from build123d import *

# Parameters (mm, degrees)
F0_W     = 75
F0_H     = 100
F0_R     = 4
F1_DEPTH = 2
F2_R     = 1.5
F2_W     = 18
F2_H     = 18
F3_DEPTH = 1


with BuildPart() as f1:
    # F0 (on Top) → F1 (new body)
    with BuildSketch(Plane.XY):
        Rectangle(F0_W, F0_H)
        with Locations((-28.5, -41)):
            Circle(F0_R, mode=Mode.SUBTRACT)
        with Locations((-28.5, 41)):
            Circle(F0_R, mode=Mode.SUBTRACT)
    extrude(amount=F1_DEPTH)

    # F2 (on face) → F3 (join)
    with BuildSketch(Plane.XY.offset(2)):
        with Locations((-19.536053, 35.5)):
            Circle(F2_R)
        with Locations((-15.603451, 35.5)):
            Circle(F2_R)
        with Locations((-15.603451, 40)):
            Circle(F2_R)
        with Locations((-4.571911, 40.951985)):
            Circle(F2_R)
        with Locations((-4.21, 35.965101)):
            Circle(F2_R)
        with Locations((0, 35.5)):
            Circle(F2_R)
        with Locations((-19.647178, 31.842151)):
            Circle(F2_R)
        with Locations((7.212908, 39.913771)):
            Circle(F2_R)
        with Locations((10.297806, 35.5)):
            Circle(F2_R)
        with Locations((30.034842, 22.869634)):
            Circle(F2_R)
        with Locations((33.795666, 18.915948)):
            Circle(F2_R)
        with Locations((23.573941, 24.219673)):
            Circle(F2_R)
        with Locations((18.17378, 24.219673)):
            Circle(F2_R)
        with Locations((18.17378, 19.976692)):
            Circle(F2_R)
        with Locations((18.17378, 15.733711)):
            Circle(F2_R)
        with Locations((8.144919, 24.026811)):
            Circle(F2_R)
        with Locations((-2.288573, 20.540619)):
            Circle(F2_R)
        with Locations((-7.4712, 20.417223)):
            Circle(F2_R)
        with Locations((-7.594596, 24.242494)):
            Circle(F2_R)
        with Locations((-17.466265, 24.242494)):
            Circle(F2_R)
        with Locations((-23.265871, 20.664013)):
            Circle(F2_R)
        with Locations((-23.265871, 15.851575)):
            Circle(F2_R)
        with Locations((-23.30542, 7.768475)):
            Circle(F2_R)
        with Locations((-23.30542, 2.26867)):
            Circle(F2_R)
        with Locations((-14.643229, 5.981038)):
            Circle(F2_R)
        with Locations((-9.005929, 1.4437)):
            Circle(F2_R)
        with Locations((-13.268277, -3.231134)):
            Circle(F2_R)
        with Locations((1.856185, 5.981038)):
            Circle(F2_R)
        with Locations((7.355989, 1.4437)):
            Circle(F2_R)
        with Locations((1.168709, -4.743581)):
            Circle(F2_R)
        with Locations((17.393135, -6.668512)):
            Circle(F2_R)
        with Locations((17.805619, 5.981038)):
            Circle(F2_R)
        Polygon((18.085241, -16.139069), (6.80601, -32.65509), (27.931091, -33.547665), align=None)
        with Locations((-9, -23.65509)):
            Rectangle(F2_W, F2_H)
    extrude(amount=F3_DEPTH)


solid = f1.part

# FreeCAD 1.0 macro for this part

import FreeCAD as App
import Part
import Sketcher

V = App.Vector

doc = App.newDocument("Part")
params = doc.addObject("Spreadsheet::Sheet", "Params")
for row, (alias, value) in enumerate([
    ("sketch1_diameter", "8 mm"),
    ("sketch1_width", "75 mm"),
    ("sketch1_height", "100 mm"),
    ("pad1_length", "2 mm"),
    ("sketch2_diameter", "3 mm"),
    ("sketch2_width", "18 mm"),
    ("sketch2_length", "20 mm"),
    ("pad2_length", "1 mm"),
], start=1):
    params.set(f"A{row}", alias)
    params.set(f"B{row}", "=" + value)
    params.setAlias(f"B{row}", alias)

body = doc.addObject("PartDesign::Body", "Body")

# Sketch on XY plane
sketch1 = body.newObject("Sketcher::SketchObject", "Sketch")
sketch1.AttachmentSupport = (doc.getObject("XY_Plane"), [""])
sketch1.MapMode = "FlatFace"
sketch1.addGeometry(Part.LineSegment(V(-37.5, 50, 0), V(-37.5, -50, 0)), False)
sketch1.addGeometry(Part.LineSegment(V(-37.5, -50, 0), V(37.5, -50, 0)), False)
sketch1.addGeometry(Part.LineSegment(V(37.5, -50, 0), V(37.5, 50, 0)), False)
sketch1.addGeometry(Part.LineSegment(V(37.5, 50, 0), V(-37.5, 50, 0)), False)
sketch1.addGeometry(Part.Circle(V(-28.5, -41, 0), V(0, 0, 1), 4), False)
sketch1.addGeometry(Part.Circle(V(-28.5, 41, 0), V(0, 0, 1), 4), False)
sketch1.addConstraint(Sketcher.Constraint("Coincident", 0, 2, 1, 1))
sketch1.addConstraint(Sketcher.Constraint("Coincident", 1, 2, 2, 1))
sketch1.addConstraint(Sketcher.Constraint("Coincident", 2, 2, 3, 1))
sketch1.addConstraint(Sketcher.Constraint("Coincident", 3, 2, 0, 1))
sketch1.addConstraint(Sketcher.Constraint("Vertical", 0))
sketch1.addConstraint(Sketcher.Constraint("Horizontal", 1))
sketch1.addConstraint(Sketcher.Constraint("Vertical", 2))
sketch1.addConstraint(Sketcher.Constraint("Horizontal", 3))
sketch1.addConstraint(Sketcher.Constraint("Equal", 4, 5))
sketch1.addConstraint(Sketcher.Constraint("Symmetric", 0, 2, 2, 2, -1, 1))
sketch1.addConstraint(Sketcher.Constraint("Symmetric", 4, 3, 5, 3, -1))
sketch1.addConstraint(Sketcher.Constraint("Diameter", 4, 8.0))
sketch1.addConstraint(Sketcher.Constraint("DistanceX", 1, 1, 1, 2, 75.0))
sketch1.addConstraint(Sketcher.Constraint("DistanceY", 0, 2, 0, 1, 100.0))
sketch1.addConstraint(Sketcher.Constraint("DistanceY", 4, 3, -1, 1, 41.0))
sketch1.addConstraint(Sketcher.Constraint("DistanceX", 0, 2, 4, 3, 9.0))
sketch1.setExpression("Constraints[11]", "Params.sketch1_diameter")
sketch1.setExpression("Constraints[12]", "Params.sketch1_width")
sketch1.setExpression("Constraints[13]", "Params.sketch1_height")
pad1 = body.newObject("PartDesign::Pad", "Pad")
pad1.Profile = sketch1
pad1.setExpression("Length", "Params.pad1_length")

# Sketch on XY plane
sketch2 = body.newObject("Sketcher::SketchObject", "Sketch001")
sketch2.AttachmentSupport = (doc.getObject("XY_Plane"), [""])
sketch2.MapMode = "FlatFace"
sketch2.AttachmentOffset = App.Placement(V(0, 0, 2), App.Rotation())
sketch2.addGeometry(Part.Circle(V(-19.536053, 35.5, 0), V(0, 0, 1), 1.5), False)
sketch2.addGeometry(Part.Circle(V(-15.603451, 35.5, 0), V(0, 0, 1), 1.5), False)
sketch2.addGeometry(Part.Circle(V(-15.603451, 40, 0), V(0, 0, 1), 1.5), False)
sketch2.addGeometry(Part.Circle(V(-4.571911, 40.951985, 0), V(0, 0, 1), 1.5), False)
sketch2.addGeometry(Part.Circle(V(-4.21, 35.965101, 0), V(0, 0, 1), 1.5), False)
sketch2.addGeometry(Part.Circle(V(0, 35.5, 0), V(0, 0, 1), 1.5), False)
sketch2.addGeometry(Part.Circle(V(-19.647178, 31.842151, 0), V(0, 0, 1), 1.5), False)
sketch2.addGeometry(Part.Circle(V(7.212908, 39.913771, 0), V(0, 0, 1), 1.5), False)
sketch2.addGeometry(Part.Circle(V(10.297806, 35.5, 0), V(0, 0, 1), 1.5), False)
sketch2.addGeometry(Part.Circle(V(30.034842, 22.869634, 0), V(0, 0, 1), 1.5), False)
sketch2.addGeometry(Part.Circle(V(33.795666, 18.915948, 0), V(0, 0, 1), 1.5), False)
sketch2.addGeometry(Part.Circle(V(23.573941, 24.219673, 0), V(0, 0, 1), 1.5), False)
sketch2.addGeometry(Part.Circle(V(18.17378, 24.219673, 0), V(0, 0, 1), 1.5), False)
sketch2.addGeometry(Part.Circle(V(18.17378, 19.976692, 0), V(0, 0, 1), 1.5), False)
sketch2.addGeometry(Part.Circle(V(18.17378, 15.733711, 0), V(0, 0, 1), 1.5), False)
sketch2.addGeometry(Part.Circle(V(8.144919, 24.026811, 0), V(0, 0, 1), 1.5), False)
sketch2.addGeometry(Part.Circle(V(-2.288573, 20.540619, 0), V(0, 0, 1), 1.5), False)
sketch2.addGeometry(Part.Circle(V(-7.4712, 20.417223, 0), V(0, 0, 1), 1.5), False)
sketch2.addGeometry(Part.Circle(V(-7.594596, 24.242494, 0), V(0, 0, 1), 1.5), False)
sketch2.addGeometry(Part.Circle(V(-17.466265, 24.242494, 0), V(0, 0, 1), 1.5), False)
sketch2.addGeometry(Part.Circle(V(-23.265871, 20.664013, 0), V(0, 0, 1), 1.5), False)
sketch2.addGeometry(Part.Circle(V(-23.265871, 15.851575, 0), V(0, 0, 1), 1.5), False)
sketch2.addGeometry(Part.Circle(V(-23.30542, 7.768475, 0), V(0, 0, 1), 1.5), False)
sketch2.addGeometry(Part.Circle(V(-23.30542, 2.26867, 0), V(0, 0, 1), 1.5), False)
sketch2.addGeometry(Part.Circle(V(-14.643229, 5.981038, 0), V(0, 0, 1), 1.5), False)
sketch2.addGeometry(Part.Circle(V(-9.005929, 1.4437, 0), V(0, 0, 1), 1.5), False)
sketch2.addGeometry(Part.Circle(V(-13.268277, -3.231134, 0), V(0, 0, 1), 1.5), False)
sketch2.addGeometry(Part.Circle(V(1.856185, 5.981038, 0), V(0, 0, 1), 1.5), False)
sketch2.addGeometry(Part.Circle(V(7.355989, 1.4437, 0), V(0, 0, 1), 1.5), False)
sketch2.addGeometry(Part.Circle(V(1.168709, -4.743581, 0), V(0, 0, 1), 1.5), False)
sketch2.addGeometry(Part.Circle(V(17.393135, -6.668512, 0), V(0, 0, 1), 1.5), False)
sketch2.addGeometry(Part.Circle(V(17.805619, 5.981038, 0), V(0, 0, 1), 1.5), False)
sketch2.addGeometry(Part.LineSegment(V(18.085241, -16.139069, 0), V(6.80601, -32.65509, 0)), False)
sketch2.addGeometry(Part.LineSegment(V(6.80601, -32.65509, 0), V(27.931091, -33.547665, 0)), False)
sketch2.addGeometry(Part.LineSegment(V(27.931091, -33.547665, 0), V(18.085241, -16.139069, 0)), False)
sketch2.addGeometry(Part.LineSegment(V(-18, -14.65509, 0), V(-18, -32.65509, 0)), False)
sketch2.addGeometry(Part.LineSegment(V(-18, -32.65509, 0), V(0, -32.65509, 0)), False)
sketch2.addGeometry(Part.LineSegment(V(0, -32.65509, 0), V(0, -14.65509, 0)), False)
sketch2.addGeometry(Part.LineSegment(V(0, -14.65509, 0), V(-18, -14.65509, 0)), False)
sketch2.addConstraint(Sketcher.Constraint("Coincident", 32, 2, 33, 1))
sketch2.addConstraint(Sketcher.Constraint("Coincident", 33, 2, 34, 1))
sketch2.addConstraint(Sketcher.Constraint("Coincident", 34, 2, 32, 1))
sketch2.addConstraint(Sketcher.Constraint("Coincident", 35, 2, 36, 1))
sketch2.addConstraint(Sketcher.Constraint("Coincident", 36, 2, 37, 1))
sketch2.addConstraint(Sketcher.Constraint("Coincident", 37, 2, 38, 1))
sketch2.addConstraint(Sketcher.Constraint("Coincident", 38, 2, 35, 1))
sketch2.addConstraint(Sketcher.Constraint("Vertical", 35))
sketch2.addConstraint(Sketcher.Constraint("Horizontal", 36))
sketch2.addConstraint(Sketcher.Constraint("Vertical", 37))
sketch2.addConstraint(Sketcher.Constraint("Horizontal", 38))
sketch2.addConstraint(Sketcher.Constraint("Equal", 0, 1))
sketch2.addConstraint(Sketcher.Constraint("Equal", 1, 2))
sketch2.addConstraint(Sketcher.Constraint("Equal", 2, 3))
sketch2.addConstraint(Sketcher.Constraint("Equal", 3, 4))
sketch2.addConstraint(Sketcher.Constraint("Equal", 4, 5))
sketch2.addConstraint(Sketcher.Constraint("Equal", 5, 6))
sketch2.addConstraint(Sketcher.Constraint("Equal", 6, 7))
sketch2.addConstraint(Sketcher.Constraint("Equal", 7, 8))
sketch2.addConstraint(Sketcher.Constraint("Equal", 8, 9))
sketch2.addConstraint(Sketcher.Constraint("Equal", 9, 10))
sketch2.addConstraint(Sketcher.Constraint("Equal", 10, 11))
sketch2.addConstraint(Sketcher.Constraint("Equal", 11, 12))
sketch2.addConstraint(Sketcher.Constraint("Equal", 12, 13))
sketch2.addConstraint(Sketcher.Constraint("Equal", 13, 14))
sketch2.addConstraint(Sketcher.Constraint("Equal", 14, 15))
sketch2.addConstraint(Sketcher.Constraint("Equal", 15, 16))
sketch2.addConstraint(Sketcher.Constraint("Equal", 16, 17))
sketch2.addConstraint(Sketcher.Constraint("Equal", 17, 18))
sketch2.addConstraint(Sketcher.Constraint("Equal", 18, 19))
sketch2.addConstraint(Sketcher.Constraint("Equal", 19, 20))
sketch2.addConstraint(Sketcher.Constraint("Equal", 20, 21))
sketch2.addConstraint(Sketcher.Constraint("Equal", 21, 22))
sketch2.addConstraint(Sketcher.Constraint("Equal", 22, 23))
sketch2.addConstraint(Sketcher.Constraint("Equal", 23, 24))
sketch2.addConstraint(Sketcher.Constraint("Equal", 24, 25))
sketch2.addConstraint(Sketcher.Constraint("Equal", 25, 26))
sketch2.addConstraint(Sketcher.Constraint("Equal", 26, 27))
sketch2.addConstraint(Sketcher.Constraint("Equal", 27, 28))
sketch2.addConstraint(Sketcher.Constraint("Equal", 28, 29))
sketch2.addConstraint(Sketcher.Constraint("Equal", 29, 30))
sketch2.addConstraint(Sketcher.Constraint("Equal", 30, 31))
sketch2.addConstraint(Sketcher.Constraint("PointOnObject", 5, 3, -2))
sketch2.addConstraint(Sketcher.Constraint("PointOnObject", 36, 2, -2))
sketch2.addConstraint(Sketcher.Constraint("Horizontal", 0, 3, 1, 3))
sketch2.addConstraint(Sketcher.Constraint("Horizontal", 1, 3, 5, 3))
sketch2.addConstraint(Sketcher.Constraint("Horizontal", 5, 3, 8, 3))
sketch2.addConstraint(Sketcher.Constraint("Horizontal", 11, 3, 12, 3))
sketch2.addConstraint(Sketcher.Constraint("Horizontal", 18, 3, 19, 3))
sketch2.addConstraint(Sketcher.Constraint("Horizontal", 24, 3, 27, 3))
sketch2.addConstraint(Sketcher.Constraint("Horizontal", 25, 3, 28, 3))
sketch2.addConstraint(Sketcher.Constraint("Horizontal", 27, 3, 31, 3))
sketch2.addConstraint(Sketcher.Constraint("Horizontal", 32, 2, 35, 2))
sketch2.addConstraint(Sketcher.Constraint("Vertical", 1, 3, 2, 3))
sketch2.addConstraint(Sketcher.Constraint("Vertical", 12, 3, 13, 3))
sketch2.addConstraint(Sketcher.Constraint("Vertical", 13, 3, 14, 3))
sketch2.addConstraint(Sketcher.Constraint("Vertical", 20, 3, 21, 3))
sketch2.addConstraint(Sketcher.Constraint("Vertical", 22, 3, 23, 3))
sketch2.addConstraint(Sketcher.Constraint("Equal", 38, 35))
sketch2.addConstraint(Sketcher.Constraint("Equal", 32, 34))
sketch2.addConstraint(Sketcher.Constraint("Diameter", 0, 3.0))
sketch2.addConstraint(Sketcher.Constraint("DistanceX", 36, 1, 36, 2, 18.0))
sketch2.addConstraint(Sketcher.Constraint("Distance", 32, 20.0))
sketch2.addConstraint(Sketcher.Constraint("DistanceY", -1, 1, 2, 3, 40.0))
sketch2.addConstraint(Sketcher.Constraint("DistanceY", -1, 1, 0, 3, 35.5))
sketch2.addConstraint(Sketcher.Constraint("DistanceX", 4, 3, -1, 1, 4.21))
sketch2.addConstraint(Sketcher.Constraint("DistanceY", -1, 1, 4, 3, 35.965101))
sketch2.addConstraint(Sketcher.Constraint("DistanceX", 17, 3, -1, 1, 7.4712))
sketch2.addConstraint(Sketcher.Constraint("DistanceY", -1, 1, 25, 3, 1.4437))
sketch2.addConstraint(Sketcher.Constraint("DistanceX", 0, 3, 1, 3, 3.932602))
sketch2.addConstraint(Sketcher.Constraint("DistanceX", 11, 3, 9, 3, 6.460901))
sketch2.addConstraint(Sketcher.Constraint("DistanceY", 14, 3, 15, 3, 8.2931))
sketch2.addConstraint(Sketcher.Constraint("DistanceY", 22, 3, 21, 3, 8.0831))
sketch2.addConstraint(Sketcher.Constraint("DistanceX", 24, 3, 25, 3, 5.6373))
sketch2.addConstraint(Sketcher.Constraint("DistanceX", 29, 3, 32, 2, 5.637301))
sketch2.addConstraint(Sketcher.Constraint("DistanceX", 28, 3, 33, 2, 20.575102))
sketch2.addConstraint(Sketcher.Constraint("Distance", 33, 21.143929))
sketch2.addConstraint(Sketcher.Constraint("DistanceX", 1, 3, -1, 1, 15.603451))
sketch2.addConstraint(Sketcher.Constraint("DistanceX", 3, 3, -1, 1, 4.571911))
sketch2.addConstraint(Sketcher.Constraint("DistanceX", 6, 3, -1, 1, 19.647178))
sketch2.addConstraint(Sketcher.Constraint("DistanceY", -1, 1, 6, 3, 31.842151))
sketch2.addConstraint(Sketcher.Constraint("DistanceY", -1, 1, 7, 3, 39.913771))
sketch2.addConstraint(Sketcher.Constraint("DistanceY", -1, 1, 10, 3, 18.915948))
sketch2.addConstraint(Sketcher.Constraint("DistanceX", -1, 1, 11, 3, 23.573941))
sketch2.addConstraint(Sketcher.Constraint("DistanceX", -1, 1, 12, 3, 18.17378))
sketch2.addConstraint(Sketcher.Constraint("DistanceY", -1, 1, 13, 3, 19.976692))
sketch2.addConstraint(Sketcher.Constraint("DistanceY", -1, 1, 14, 3, 15.733711))
sketch2.addConstraint(Sketcher.Constraint("DistanceX", -1, 1, 15, 3, 8.144919))
sketch2.addConstraint(Sketcher.Constraint("DistanceY", -1, 1, 16, 3, 20.540619))
sketch2.addConstraint(Sketcher.Constraint("DistanceX", 20, 3, -1, 1, 23.265871))
sketch2.addConstraint(Sketcher.Constraint("DistanceX", 22, 3, -1, 1, 23.30542))
sketch2.addConstraint(Sketcher.Constraint("DistanceY", -1, 1, 23, 3, 2.26867))
sketch2.addConstraint(Sketcher.Constraint("DistanceX", 24, 3, -1, 1, 14.643229))
sketch2.addConstraint(Sketcher.Constraint("DistanceX", -1, 1, 28, 3, 7.355989))
sketch2.addConstraint(Sketcher.Constraint("DistanceX", -1, 1, 29, 3, 1.168709))
sketch2.addConstraint(Sketcher.Constraint("DistanceY", 29, 3, -1, 1, 4.743581))
sketch2.addConstraint(Sketcher.Constraint("DistanceY", 30, 3, -1, 1, 6.668512))
sketch2.addConstraint(Sketcher.Constraint("DistanceX", -1, 1, 31, 3, 17.805619))
sketch2.addConstraint(Sketcher.Constraint("DistanceY", 32, 2, -1, 1, 32.65509))
sketch2.addConstraint(Sketcher.Constraint("DistanceX", 3, 3, 7, 3, 11.784819))
sketch2.addConstraint(Sketcher.Constraint("DistanceY", 9, 3, 3, 3, 18.082351))
sketch2.addConstraint(Sketcher.Constraint("DistanceX", 8, 3, 10, 3, 23.49786))
sketch2.addConstraint(Sketcher.Constraint("DistanceY", 9, 3, 11, 3, 1.350039))
sketch2.addConstraint(Sketcher.Constraint("DistanceY", 13, 3, 12, 3, 4.242981))
sketch2.addConstraint(Sketcher.Constraint("DistanceX", 16, 3, 15, 3, 10.433492))
sketch2.addConstraint(Sketcher.Constraint("DistanceX", 16, 3, 8, 3, 12.586379))
sketch2.addConstraint(Sketcher.Constraint("DistanceY", 17, 3, 6, 3, 11.424928))
sketch2.addConstraint(Sketcher.Constraint("DistanceY", 17, 3, 18, 3, 3.825271))
sketch2.addConstraint(Sketcher.Constraint("DistanceX", 19, 3, 18, 3, 9.871669))
sketch2.addConstraint(Sketcher.Constraint("DistanceY", 20, 3, 19, 3, 3.578481))
sketch2.addConstraint(Sketcher.Constraint("DistanceY", 21, 3, 20, 3, 4.812438))
sketch2.addConstraint(Sketcher.Constraint("DistanceY", 26, 3, 24, 3, 9.212172))
sketch2.addConstraint(Sketcher.Constraint("DistanceY", 26, 3, 22, 3, 10.999609))
sketch2.addConstraint(Sketcher.Constraint("DistanceX", 27, 3, 30, 3, 15.53695))
sketch2.addConstraint(Sketcher.Constraint("DistanceX", 18, 3, -1, 1, 7.594596))
sketch2.addConstraint(Sketcher.Constraint("DistanceX", 26, 3, -1, 1, 13.268277))
sketch2.addConstraint(Sketcher.Constraint("DistanceX", -1, 1, 27, 3, 1.856185))
sketch2.setExpression("Constraints[60]", "Params.sketch2_diameter")
sketch2.setExpression("Constraints[61]", "Params.sketch2_width")
sketch2.setExpression("Constraints[62]", "Params.sketch2_length")
pad2 = body.newObject("PartDesign::Pad", "Pad001")
pad2.Profile = sketch2
pad2.setExpression("Length", "Params.pad2_length")

doc.recompute()
